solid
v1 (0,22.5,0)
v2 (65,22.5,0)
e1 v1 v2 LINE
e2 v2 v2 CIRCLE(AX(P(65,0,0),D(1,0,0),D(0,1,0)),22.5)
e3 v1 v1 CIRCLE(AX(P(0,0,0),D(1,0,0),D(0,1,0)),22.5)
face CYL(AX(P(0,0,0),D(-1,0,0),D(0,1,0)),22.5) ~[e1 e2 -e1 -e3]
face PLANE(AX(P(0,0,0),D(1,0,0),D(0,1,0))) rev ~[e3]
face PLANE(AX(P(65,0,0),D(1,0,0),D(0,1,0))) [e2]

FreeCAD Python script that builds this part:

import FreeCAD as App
import Part
import Sketcher

V = App.Vector
Q = App.Units.Quantity

doc = App.newDocument("Part")
params = doc.addObject("Spreadsheet::Sheet", "Params")
for row, (alias, value) in enumerate([
    ("sketch1_diameter", "45 mm"),
    ("pad1_length", "65 mm"),
], start=1):
    params.set(f"A{row}", alias)
    params.set(f"B{row}", "=" + value)
    params.setAlias(f"B{row}", alias)

body = doc.addObject("PartDesign::Body", "Body")

# Sketch on YZ plane
sketch1 = doc.addObject("Sketcher::SketchObject", "Sketch")
body.addObject(sketch1)
sketch1.AttachmentSupport = (doc.YZ_Plane, [""])
sketch1.MapMode = "FlatFace"
sketch1.addGeometry(Part.Circle(V(0, 0, 0), V(0, 0, 1), 22), False)
sketch1.addConstraint([
    Sketcher.Constraint("Coincident", 0, 3, -1, 1),
    Sketcher.Constraint("Diameter", 0, Q("45 mm")),
])
sketch1.setExpression("Constraints[1]", "Params.sketch1_diameter")
pad1 = doc.addObject("PartDesign::Pad", "Pad")
body.addObject(pad1)
pad1.Profile = sketch1
pad1.setExpression("Length", "Params.pad1_length")

doc.recompute()
